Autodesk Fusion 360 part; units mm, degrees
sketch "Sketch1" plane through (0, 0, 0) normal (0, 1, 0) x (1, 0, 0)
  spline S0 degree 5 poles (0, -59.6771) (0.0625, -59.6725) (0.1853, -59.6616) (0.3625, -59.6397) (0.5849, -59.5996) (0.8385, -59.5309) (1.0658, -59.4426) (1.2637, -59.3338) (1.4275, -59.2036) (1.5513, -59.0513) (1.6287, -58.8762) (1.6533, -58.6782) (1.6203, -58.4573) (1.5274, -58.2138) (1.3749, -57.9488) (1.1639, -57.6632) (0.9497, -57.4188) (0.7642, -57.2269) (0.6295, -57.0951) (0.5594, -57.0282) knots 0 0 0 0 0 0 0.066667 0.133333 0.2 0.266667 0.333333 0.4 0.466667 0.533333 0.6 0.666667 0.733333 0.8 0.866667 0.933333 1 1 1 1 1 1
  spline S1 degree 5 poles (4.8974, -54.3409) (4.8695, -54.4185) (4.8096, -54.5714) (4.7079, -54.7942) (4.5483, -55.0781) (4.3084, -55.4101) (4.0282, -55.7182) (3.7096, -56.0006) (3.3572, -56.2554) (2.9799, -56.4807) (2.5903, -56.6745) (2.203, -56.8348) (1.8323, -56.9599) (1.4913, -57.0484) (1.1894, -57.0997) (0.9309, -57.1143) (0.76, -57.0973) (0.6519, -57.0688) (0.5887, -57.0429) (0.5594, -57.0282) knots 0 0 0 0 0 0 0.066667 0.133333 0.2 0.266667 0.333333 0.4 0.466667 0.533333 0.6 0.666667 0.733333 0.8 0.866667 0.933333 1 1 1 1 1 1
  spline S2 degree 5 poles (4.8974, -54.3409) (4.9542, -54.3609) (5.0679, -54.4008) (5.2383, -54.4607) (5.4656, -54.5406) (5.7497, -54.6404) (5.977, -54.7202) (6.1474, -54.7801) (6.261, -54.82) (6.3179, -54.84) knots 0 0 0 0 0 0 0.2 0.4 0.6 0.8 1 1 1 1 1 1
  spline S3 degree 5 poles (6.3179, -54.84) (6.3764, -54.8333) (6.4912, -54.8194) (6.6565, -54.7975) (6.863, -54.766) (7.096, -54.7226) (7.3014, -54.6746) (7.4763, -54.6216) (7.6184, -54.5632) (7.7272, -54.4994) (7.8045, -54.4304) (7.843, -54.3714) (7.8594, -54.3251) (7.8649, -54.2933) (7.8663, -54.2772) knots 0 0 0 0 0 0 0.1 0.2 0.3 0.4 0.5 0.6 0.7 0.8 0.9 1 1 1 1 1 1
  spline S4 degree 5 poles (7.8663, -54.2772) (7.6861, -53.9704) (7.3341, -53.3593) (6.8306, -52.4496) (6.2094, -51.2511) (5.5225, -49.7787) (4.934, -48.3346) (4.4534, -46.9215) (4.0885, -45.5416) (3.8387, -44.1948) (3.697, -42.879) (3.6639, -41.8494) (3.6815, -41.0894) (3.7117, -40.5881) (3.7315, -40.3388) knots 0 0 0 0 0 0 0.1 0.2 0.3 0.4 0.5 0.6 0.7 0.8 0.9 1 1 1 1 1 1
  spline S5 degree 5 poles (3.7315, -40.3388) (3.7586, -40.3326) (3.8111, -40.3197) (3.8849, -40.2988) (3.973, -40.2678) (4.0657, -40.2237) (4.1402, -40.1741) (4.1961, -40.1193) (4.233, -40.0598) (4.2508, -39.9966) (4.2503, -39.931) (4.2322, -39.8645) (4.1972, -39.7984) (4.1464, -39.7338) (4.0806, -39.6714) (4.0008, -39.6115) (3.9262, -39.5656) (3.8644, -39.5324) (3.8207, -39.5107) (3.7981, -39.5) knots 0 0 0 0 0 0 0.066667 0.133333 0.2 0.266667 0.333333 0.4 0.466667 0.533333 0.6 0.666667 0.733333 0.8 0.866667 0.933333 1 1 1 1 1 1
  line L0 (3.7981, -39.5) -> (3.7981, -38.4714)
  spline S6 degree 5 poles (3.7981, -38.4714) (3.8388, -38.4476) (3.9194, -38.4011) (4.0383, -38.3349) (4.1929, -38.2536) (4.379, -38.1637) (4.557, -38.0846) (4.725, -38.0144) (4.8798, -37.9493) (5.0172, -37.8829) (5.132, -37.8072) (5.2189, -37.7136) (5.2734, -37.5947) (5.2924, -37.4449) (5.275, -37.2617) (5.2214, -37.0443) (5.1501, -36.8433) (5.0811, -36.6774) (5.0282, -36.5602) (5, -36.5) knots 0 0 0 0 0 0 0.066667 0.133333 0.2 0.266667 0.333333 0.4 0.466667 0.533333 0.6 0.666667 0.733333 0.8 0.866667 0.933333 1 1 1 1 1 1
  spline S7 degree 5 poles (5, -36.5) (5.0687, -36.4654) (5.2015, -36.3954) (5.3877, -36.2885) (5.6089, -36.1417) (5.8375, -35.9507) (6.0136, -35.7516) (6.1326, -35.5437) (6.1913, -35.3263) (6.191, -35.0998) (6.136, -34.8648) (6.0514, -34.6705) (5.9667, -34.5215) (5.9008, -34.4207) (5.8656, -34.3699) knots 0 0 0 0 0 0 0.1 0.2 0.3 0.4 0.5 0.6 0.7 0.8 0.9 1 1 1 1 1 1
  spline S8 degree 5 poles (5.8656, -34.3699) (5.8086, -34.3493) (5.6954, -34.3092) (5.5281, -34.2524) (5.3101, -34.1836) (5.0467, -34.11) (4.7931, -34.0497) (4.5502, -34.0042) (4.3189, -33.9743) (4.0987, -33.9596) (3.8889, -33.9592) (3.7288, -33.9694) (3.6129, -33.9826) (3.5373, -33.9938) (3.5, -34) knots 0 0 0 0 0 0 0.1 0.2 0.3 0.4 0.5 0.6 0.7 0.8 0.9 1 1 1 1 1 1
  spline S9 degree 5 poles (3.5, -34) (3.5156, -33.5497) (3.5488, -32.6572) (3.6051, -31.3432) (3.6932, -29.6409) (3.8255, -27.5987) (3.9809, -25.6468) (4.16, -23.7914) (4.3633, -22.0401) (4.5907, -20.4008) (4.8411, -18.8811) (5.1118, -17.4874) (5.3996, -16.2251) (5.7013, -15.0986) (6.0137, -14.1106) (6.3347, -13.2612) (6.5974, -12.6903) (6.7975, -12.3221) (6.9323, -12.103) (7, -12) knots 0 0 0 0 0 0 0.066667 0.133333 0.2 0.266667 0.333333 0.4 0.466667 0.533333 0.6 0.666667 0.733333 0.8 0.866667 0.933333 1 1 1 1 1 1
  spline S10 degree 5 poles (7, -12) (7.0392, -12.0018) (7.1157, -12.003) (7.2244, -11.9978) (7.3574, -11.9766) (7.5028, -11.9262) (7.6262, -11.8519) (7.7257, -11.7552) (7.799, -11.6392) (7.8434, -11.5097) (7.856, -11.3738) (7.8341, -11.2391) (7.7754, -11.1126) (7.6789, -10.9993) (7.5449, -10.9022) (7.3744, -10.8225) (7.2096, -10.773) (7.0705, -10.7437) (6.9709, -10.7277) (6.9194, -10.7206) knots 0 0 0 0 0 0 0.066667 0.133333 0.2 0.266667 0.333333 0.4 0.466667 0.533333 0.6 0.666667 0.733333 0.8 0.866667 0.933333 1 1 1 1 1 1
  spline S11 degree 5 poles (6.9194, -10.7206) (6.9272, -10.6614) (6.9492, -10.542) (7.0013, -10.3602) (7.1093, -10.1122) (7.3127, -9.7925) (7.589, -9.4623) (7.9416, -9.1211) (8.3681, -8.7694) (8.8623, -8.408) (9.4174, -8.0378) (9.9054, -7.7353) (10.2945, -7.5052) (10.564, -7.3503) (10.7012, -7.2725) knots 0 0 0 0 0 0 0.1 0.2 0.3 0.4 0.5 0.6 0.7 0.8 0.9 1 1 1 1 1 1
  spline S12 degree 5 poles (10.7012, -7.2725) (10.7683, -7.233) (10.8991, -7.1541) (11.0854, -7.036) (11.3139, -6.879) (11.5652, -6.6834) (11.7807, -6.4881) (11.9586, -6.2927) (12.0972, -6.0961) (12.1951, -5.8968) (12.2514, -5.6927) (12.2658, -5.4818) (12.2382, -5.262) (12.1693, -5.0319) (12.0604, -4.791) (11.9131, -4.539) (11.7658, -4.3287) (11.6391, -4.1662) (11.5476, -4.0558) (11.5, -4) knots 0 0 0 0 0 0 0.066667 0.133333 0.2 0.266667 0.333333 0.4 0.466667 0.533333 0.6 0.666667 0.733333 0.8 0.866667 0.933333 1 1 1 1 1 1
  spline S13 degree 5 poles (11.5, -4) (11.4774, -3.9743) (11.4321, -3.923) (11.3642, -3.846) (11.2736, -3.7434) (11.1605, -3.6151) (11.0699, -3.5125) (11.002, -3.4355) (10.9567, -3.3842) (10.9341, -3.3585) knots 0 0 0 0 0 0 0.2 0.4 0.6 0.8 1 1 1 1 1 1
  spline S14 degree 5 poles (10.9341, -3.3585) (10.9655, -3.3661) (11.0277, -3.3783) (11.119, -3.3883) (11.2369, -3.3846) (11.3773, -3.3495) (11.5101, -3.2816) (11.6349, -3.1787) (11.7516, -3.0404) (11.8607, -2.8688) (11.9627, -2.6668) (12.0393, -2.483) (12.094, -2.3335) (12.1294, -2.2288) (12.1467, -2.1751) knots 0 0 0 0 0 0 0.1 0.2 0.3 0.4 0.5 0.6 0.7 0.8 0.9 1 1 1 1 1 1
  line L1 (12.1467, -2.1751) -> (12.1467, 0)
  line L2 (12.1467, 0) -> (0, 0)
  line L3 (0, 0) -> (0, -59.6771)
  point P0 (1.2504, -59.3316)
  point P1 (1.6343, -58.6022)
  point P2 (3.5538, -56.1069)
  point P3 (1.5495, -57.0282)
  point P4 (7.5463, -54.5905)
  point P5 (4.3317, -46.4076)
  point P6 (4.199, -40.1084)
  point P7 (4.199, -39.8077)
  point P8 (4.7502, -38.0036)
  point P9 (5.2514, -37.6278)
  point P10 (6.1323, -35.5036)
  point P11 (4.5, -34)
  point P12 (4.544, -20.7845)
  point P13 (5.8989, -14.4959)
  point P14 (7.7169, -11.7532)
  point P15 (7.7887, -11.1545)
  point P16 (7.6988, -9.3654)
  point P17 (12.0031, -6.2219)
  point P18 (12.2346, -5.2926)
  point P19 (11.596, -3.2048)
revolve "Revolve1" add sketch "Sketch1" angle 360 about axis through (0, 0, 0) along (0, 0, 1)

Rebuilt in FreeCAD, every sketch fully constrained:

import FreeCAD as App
import Part
import Sketcher
from FreeCAD import Vector

doc = App.newDocument("Part")
body = doc.addObject("PartDesign::Body", "Body")

# Sketch on XZ plane
sketch1 = body.newObject("Sketcher::SketchObject", "Sketch")
sketch1.AttachmentSupport = (doc.getObject("XZ_Plane"), [""])
sketch1.MapMode = "FlatFace"
sketch1.addGeometry([
    Part.LineSegment(Vector(0, 0, 0), Vector(0, 59.6771, 0)),  # 0
    Part.BSplineCurve([Vector(0, 59.6771, 0), Vector(0.0625, 59.6725, 0), Vector(0.1853, 59.6616, 0), Vector(0.3625, 59.6397, 0), Vector(0.5849, 59.5996, 0), Vector(0.8385, 59.5309, 0), Vector(1.0658, 59.4426, 0), Vector(1.2637, 59.3338, 0), Vector(1.4275, 59.2036, 0), Vector(1.5513, 59.0513, 0), Vector(1.6287, 58.8762, 0), Vector(1.6533, 58.6782, 0), Vector(1.6203, 58.4573, 0), Vector(1.5274, 58.2138, 0), Vector(1.3749, 57.9488, 0), Vector(1.1639, 57.6632, 0), Vector(0.9497, 57.4188, 0), Vector(0.7642, 57.2269, 0), Vector(0.6295, 57.0951, 0), Vector(0.5594, 57.0282, 0)], [6, 1, 1, 1, 1, 1, 1, 1, 1, 1, 1, 1, 1, 1, 1, 6], [0, 0.066667, 0.133333, 0.2, 0.266667, 0.333333, 0.4, 0.466667, 0.533333, 0.6, 0.666667, 0.733333, 0.8, 0.866667, 0.933333, 1], False, 5, [1, 1, 1, 1, 1, 1, 1, 1, 1, 1, 1, 1, 1, 1, 1, 1, 1, 1, 1, 1], False),  # 1
    Part.BSplineCurve([Vector(4.8974, 54.3409, 0), Vector(4.8695, 54.4185, 0), Vector(4.8096, 54.5714, 0), Vector(4.7079, 54.7942, 0), Vector(4.5483, 55.0781, 0), Vector(4.3084, 55.4101, 0), Vector(4.0282, 55.7182, 0), Vector(3.7096, 56.0006, 0), Vector(3.3572, 56.2554, 0), Vector(2.9799, 56.4807, 0), Vector(2.5903, 56.6745, 0), Vector(2.203, 56.8348, 0), Vector(1.8323, 56.9599, 0), Vector(1.4913, 57.0484, 0), Vector(1.1894, 57.0997, 0), Vector(0.9309, 57.1143, 0), Vector(0.76, 57.0973, 0), Vector(0.6519, 57.0688, 0), Vector(0.5887, 57.0429, 0), Vector(0.5594, 57.0282, 0)], [6, 1, 1, 1, 1, 1, 1, 1, 1, 1, 1, 1, 1, 1, 1, 6], [0, 0.066667, 0.133333, 0.2, 0.266667, 0.333333, 0.4, 0.466667, 0.533333, 0.6, 0.666667, 0.733333, 0.8, 0.866667, 0.933333, 1], False, 5, [1, 1, 1, 1, 1, 1, 1, 1, 1, 1, 1, 1, 1, 1, 1, 1, 1, 1, 1, 1], False),  # 2
    Part.BSplineCurve([Vector(4.8974, 54.3409, 0), Vector(4.9542, 54.3609, 0), Vector(5.0679, 54.4008, 0), Vector(5.2383, 54.4607, 0), Vector(5.4656, 54.5406, 0), Vector(5.7497, 54.6404, 0), Vector(5.977, 54.7202, 0), Vector(6.1474, 54.7801, 0), Vector(6.261, 54.82, 0), Vector(6.3179, 54.84, 0)], [6, 1, 1, 1, 1, 6], [0, 0.2, 0.4, 0.6, 0.8, 1], False, 5, [1, 1, 1, 1, 1, 1, 1, 1, 1, 1], False),  # 3
    Part.BSplineCurve([Vector(6.3179, 54.84, 0), Vector(6.3764, 54.8333, 0), Vector(6.4912, 54.8194, 0), Vector(6.6565, 54.7975, 0), Vector(6.863, 54.766, 0), Vector(7.096, 54.7226, 0), Vector(7.3014, 54.6746, 0), Vector(7.4763, 54.6216, 0), Vector(7.6184, 54.5632, 0), Vector(7.7272, 54.4994, 0), Vector(7.8045, 54.4304, 0), Vector(7.843, 54.3714, 0), Vector(7.8594, 54.3251, 0), Vector(7.8649, 54.2933, 0), Vector(7.8663, 54.2772, 0)], [6, 1, 1, 1, 1, 1, 1, 1, 1, 1, 6], [0, 0.1, 0.2, 0.3, 0.4, 0.5, 0.6, 0.7, 0.8, 0.9, 1], False, 5, [1, 1, 1, 1, 1, 1, 1, 1, 1, 1, 1, 1, 1, 1, 1], False),  # 4
    Part.BSplineCurve([Vector(7.8663, 54.2772, 0), Vector(7.6861, 53.9704, 0), Vector(7.3341, 53.3593, 0), Vector(6.8306, 52.4496, 0), Vector(6.2094, 51.2511, 0), Vector(5.5225, 49.7787, 0), Vector(4.934, 48.3346, 0), Vector(4.4534, 46.9215, 0), Vector(4.0885, 45.5416, 0), Vector(3.8387, 44.1948, 0), Vector(3.697, 42.879, 0), Vector(3.6639, 41.8494, 0), Vector(3.6815, 41.0894, 0), Vector(3.7117, 40.5881, 0), Vector(3.7315, 40.3388, 0)], [6, 1, 1, 1, 1, 1, 1, 1, 1, 1, 6], [0, 0.1, 0.2, 0.3, 0.4, 0.5, 0.6, 0.7, 0.8, 0.9, 1], False, 5, [1, 1, 1, 1, 1, 1, 1, 1, 1, 1, 1, 1, 1, 1, 1], False),  # 5
    Part.BSplineCurve([Vector(3.7315, 40.3388, 0), Vector(3.7586, 40.3326, 0), Vector(3.8111, 40.3197, 0), Vector(3.8849, 40.2988, 0), Vector(3.973, 40.2678, 0), Vector(4.0657, 40.2237, 0), Vector(4.1402, 40.1741, 0), Vector(4.1961, 40.1193, 0), Vector(4.233, 40.0598, 0), Vector(4.2508, 39.9966, 0), Vector(4.2503, 39.931, 0), Vector(4.2322, 39.8645, 0), Vector(4.1972, 39.7984, 0), Vector(4.1464, 39.7338, 0), Vector(4.0806, 39.6714, 0), Vector(4.0008, 39.6115, 0), Vector(3.9262, 39.5656, 0), Vector(3.8644, 39.5324, 0), Vector(3.8207, 39.5107, 0), Vector(3.7981, 39.5, 0)], [6, 1, 1, 1, 1, 1, 1, 1, 1, 1, 1, 1, 1, 1, 1, 6], [0, 0.066667, 0.133333, 0.2, 0.266667, 0.333333, 0.4, 0.466667, 0.533333, 0.6, 0.666667, 0.733333, 0.8, 0.866667, 0.933333, 1], False, 5, [1, 1, 1, 1, 1, 1, 1, 1, 1, 1, 1, 1, 1, 1, 1, 1, 1, 1, 1, 1], False),  # 6
    Part.LineSegment(Vector(3.7981, 39.5, 0), Vector(3.7981, 38.4714, 0)),  # 7
    Part.BSplineCurve([Vector(3.7981, 38.4714, 0), Vector(3.8388, 38.4476, 0), Vector(3.9194, 38.4011, 0), Vector(4.0383, 38.3349, 0), Vector(4.1929, 38.2536, 0), Vector(4.379, 38.1637, 0), Vector(4.557, 38.0846, 0), Vector(4.725, 38.0144, 0), Vector(4.8798, 37.9493, 0), Vector(5.0172, 37.8829, 0), Vector(5.132, 37.8072, 0), Vector(5.2189, 37.7136, 0), Vector(5.2734, 37.5947, 0), Vector(5.2924, 37.4449, 0), Vector(5.275, 37.2617, 0), Vector(5.2214, 37.0443, 0), Vector(5.1501, 36.8433, 0), Vector(5.0811, 36.6774, 0), Vector(5.0282, 36.5602, 0), Vector(5, 36.5, 0)], [6, 1, 1, 1, 1, 1, 1, 1, 1, 1, 1, 1, 1, 1, 1, 6], [0, 0.066667, 0.133333, 0.2, 0.266667, 0.333333, 0.4, 0.466667, 0.533333, 0.6, 0.666667, 0.733333, 0.8, 0.866667, 0.933333, 1], False, 5, [1, 1, 1, 1, 1, 1, 1, 1, 1, 1, 1, 1, 1, 1, 1, 1, 1, 1, 1, 1], False),  # 8
    Part.BSplineCurve([Vector(5, 36.5, 0), Vector(5.0687, 36.4654, 0), Vector(5.2015, 36.3954, 0), Vector(5.3877, 36.2885, 0), Vector(5.6089, 36.1417, 0), Vector(5.8375, 35.9507, 0), Vector(6.0136, 35.7516, 0), Vector(6.1326, 35.5437, 0), Vector(6.1913, 35.3263, 0), Vector(6.191, 35.0998, 0), Vector(6.136, 34.8648, 0), Vector(6.0514, 34.6705, 0), Vector(5.9667, 34.5215, 0), Vector(5.9008, 34.4207, 0), Vector(5.8656, 34.3699, 0)], [6, 1, 1, 1, 1, 1, 1, 1, 1, 1, 6], [0, 0.1, 0.2, 0.3, 0.4, 0.5, 0.6, 0.7, 0.8, 0.9, 1], False, 5, [1, 1, 1, 1, 1, 1, 1, 1, 1, 1, 1, 1, 1, 1, 1], False),  # 9
    Part.BSplineCurve([Vector(5.8656, 34.3699, 0), Vector(5.8086, 34.3493, 0), Vector(5.6954, 34.3092, 0), Vector(5.5281, 34.2524, 0), Vector(5.3101, 34.1836, 0), Vector(5.0467, 34.11, 0), Vector(4.7931, 34.0497, 0), Vector(4.5502, 34.0042, 0), Vector(4.3189, 33.9743, 0), Vector(4.0987, 33.9596, 0), Vector(3.8889, 33.9592, 0), Vector(3.7288, 33.9694, 0), Vector(3.6129, 33.9826, 0), Vector(3.5373, 33.9938, 0), Vector(3.5, 34, 0)], [6, 1, 1, 1, 1, 1, 1, 1, 1, 1, 6], [0, 0.1, 0.2, 0.3, 0.4, 0.5, 0.6, 0.7, 0.8, 0.9, 1], False, 5, [1, 1, 1, 1, 1, 1, 1, 1, 1, 1, 1, 1, 1, 1, 1], False),  # 10
    Part.BSplineCurve([Vector(3.5, 34, 0), Vector(3.5156, 33.5497, 0), Vector(3.5488, 32.6572, 0), Vector(3.6051, 31.3432, 0), Vector(3.6932, 29.6409, 0), Vector(3.8255, 27.5987, 0), Vector(3.9809, 25.6468, 0), Vector(4.16, 23.7914, 0), Vector(4.3633, 22.0401, 0), Vector(4.5907, 20.4008, 0), Vector(4.8411, 18.8811, 0), Vector(5.1118, 17.4874, 0), Vector(5.3996, 16.2251, 0), Vector(5.7013, 15.0986, 0), Vector(6.0137, 14.1106, 0), Vector(6.3347, 13.2612, 0), Vector(6.5974, 12.6903, 0), Vector(6.7975, 12.3221, 0), Vector(6.9323, 12.103, 0), Vector(7, 12, 0)], [6, 1, 1, 1, 1, 1, 1, 1, 1, 1, 1, 1, 1, 1, 1, 6], [0, 0.066667, 0.133333, 0.2, 0.266667, 0.333333, 0.4, 0.466667, 0.533333, 0.6, 0.666667, 0.733333, 0.8, 0.866667, 0.933333, 1], False, 5, [1, 1, 1, 1, 1, 1, 1, 1, 1, 1, 1, 1, 1, 1, 1, 1, 1, 1, 1, 1], False),  # 11
    Part.BSplineCurve([Vector(7, 12, 0), Vector(7.0392, 12.0018, 0), Vector(7.1157, 12.003, 0), Vector(7.2244, 11.9978, 0), Vector(7.3574, 11.9766, 0), Vector(7.5028, 11.9262, 0), Vector(7.6262, 11.8519, 0), Vector(7.7257, 11.7552, 0), Vector(7.799, 11.6392, 0), Vector(7.8434, 11.5097, 0), Vector(7.856, 11.3738, 0), Vector(7.8341, 11.2391, 0), Vector(7.7754, 11.1126, 0), Vector(7.6789, 10.9993, 0), Vector(7.5449, 10.9022, 0), Vector(7.3744, 10.8225, 0), Vector(7.2096, 10.773, 0), Vector(7.0705, 10.7437, 0), Vector(6.9709, 10.7277, 0), Vector(6.9194, 10.7206, 0)], [6, 1, 1, 1, 1, 1, 1, 1, 1, 1, 1, 1, 1, 1, 1, 6], [0, 0.066667, 0.133333, 0.2, 0.266667, 0.333333, 0.4, 0.466667, 0.533333, 0.6, 0.666667, 0.733333, 0.8, 0.866667, 0.933333, 1], False, 5, [1, 1, 1, 1, 1, 1, 1, 1, 1, 1, 1, 1, 1, 1, 1, 1, 1, 1, 1, 1], False),  # 12
    Part.BSplineCurve([Vector(6.9194, 10.7206, 0), Vector(6.9272, 10.6614, 0), Vector(6.9492, 10.542, 0), Vector(7.0013, 10.3602, 0), Vector(7.1093, 10.1122, 0), Vector(7.3127, 9.7925, 0), Vector(7.589, 9.4623, 0), Vector(7.9416, 9.1211, 0), Vector(8.3681, 8.7694, 0), Vector(8.8623, 8.408, 0), Vector(9.4174, 8.0378, 0), Vector(9.9054, 7.7353, 0), Vector(10.2945, 7.5052, 0), Vector(10.564, 7.3503, 0), Vector(10.7012, 7.2725, 0)], [6, 1, 1, 1, 1, 1, 1, 1, 1, 1, 6], [0, 0.1, 0.2, 0.3, 0.4, 0.5, 0.6, 0.7, 0.8, 0.9, 1], False, 5, [1, 1, 1, 1, 1, 1, 1, 1, 1, 1, 1, 1, 1, 1, 1], False),  # 13
    Part.BSplineCurve([Vector(10.7012, 7.2725, 0), Vector(10.7683, 7.233, 0), Vector(10.8991, 7.1541, 0), Vector(11.0854, 7.036, 0), Vector(11.3139, 6.879, 0), Vector(11.5652, 6.6834, 0), Vector(11.7807, 6.4881, 0), Vector(11.9586, 6.2927, 0), Vector(12.0972, 6.0961, 0), Vector(12.1951, 5.8968, 0), Vector(12.2514, 5.6927, 0), Vector(12.2658, 5.4818, 0), Vector(12.2382, 5.262, 0), Vector(12.1693, 5.0319, 0), Vector(12.0604, 4.791, 0), Vector(11.9131, 4.539, 0), Vector(11.7658, 4.3287, 0), Vector(11.6391, 4.1662, 0), Vector(11.5476, 4.0558, 0), Vector(11.5, 4, 0)], [6, 1, 1, 1, 1, 1, 1, 1, 1, 1, 1, 1, 1, 1, 1, 6], [0, 0.066667, 0.133333, 0.2, 0.266667, 0.333333, 0.4, 0.466667, 0.533333, 0.6, 0.666667, 0.733333, 0.8, 0.866667, 0.933333, 1], False, 5, [1, 1, 1, 1, 1, 1, 1, 1, 1, 1, 1, 1, 1, 1, 1, 1, 1, 1, 1, 1], False),  # 14
    Part.BSplineCurve([Vector(11.5, 4, 0), Vector(11.4774, 3.9743, 0), Vector(11.4321, 3.923, 0), Vector(11.3642, 3.846, 0), Vector(11.2736, 3.7434, 0), Vector(11.1605, 3.6151, 0), Vector(11.0699, 3.5125, 0), Vector(11.002, 3.4355, 0), Vector(10.9567, 3.3842, 0), Vector(10.9341, 3.3585, 0)], [6, 1, 1, 1, 1, 6], [0, 0.2, 0.4, 0.6, 0.8, 1], False, 5, [1, 1, 1, 1, 1, 1, 1, 1, 1, 1], False),  # 15
    Part.BSplineCurve([Vector(10.9341, 3.3585, 0), Vector(10.9655, 3.3661, 0), Vector(11.0277, 3.3783, 0), Vector(11.119, 3.3883, 0), Vector(11.2369, 3.3846, 0), Vector(11.3773, 3.3495, 0), Vector(11.5101, 3.2816, 0), Vector(11.6349, 3.1787, 0), Vector(11.7516, 3.0404, 0), Vector(11.8607, 2.8688, 0), Vector(11.9627, 2.6668, 0), Vector(12.0393, 2.483, 0), Vector(12.094, 2.3335, 0), Vector(12.1294, 2.2288, 0), Vector(12.1467, 2.1751, 0)], [6, 1, 1, 1, 1, 1, 1, 1, 1, 1, 6], [0, 0.1, 0.2, 0.3, 0.4, 0.5, 0.6, 0.7, 0.8, 0.9, 1], False, 5, [1, 1, 1, 1, 1, 1, 1, 1, 1, 1, 1, 1, 1, 1, 1], False),  # 16
    Part.LineSegment(Vector(12.1467, 2.1751, 0), Vector(12.1467, 0, 0)),  # 17
    Part.LineSegment(Vector(12.1467, 0, 0), Vector(0, 0, 0)),  # 18
], False)
sketch1.addConstraint([
    Sketcher.Constraint("Block", 1),
    Sketcher.Constraint("Block", 2),
    Sketcher.Constraint("Block", 3),
    Sketcher.Constraint("Block", 4),
    Sketcher.Constraint("Block", 5),
    Sketcher.Constraint("Block", 6),
    Sketcher.Constraint("Block", 8),
    Sketcher.Constraint("Block", 9),
    Sketcher.Constraint("Block", 10),
    Sketcher.Constraint("Block", 11),
    Sketcher.Constraint("Block", 12),
    Sketcher.Constraint("Block", 13),
    Sketcher.Constraint("Block", 14),
    Sketcher.Constraint("Block", 15),
    Sketcher.Constraint("Block", 16),
    Sketcher.Constraint("Coincident", 0, 2, 1, 1),
    Sketcher.Constraint("Coincident", 6, 2, 7, 1),
    Sketcher.Constraint("Coincident", 7, 2, 8, 1),
    Sketcher.Constraint("Coincident", 16, 2, 17, 1),
    Sketcher.Constraint("Coincident", 17, 2, 18, 1),
    Sketcher.Constraint("Coincident", 18, 2, 0, 1),
    Sketcher.Constraint("Vertical", 0),
    Sketcher.Constraint("Vertical", 17),
    Sketcher.Constraint("Horizontal", 18),
    Sketcher.Constraint("PointOnObject", 17, 2, -1),
])
revolution = body.newObject("PartDesign::Revolution", "Revolution")
revolution.Profile = sketch1
revolution.ReferenceAxis = (sketch1, ["V_Axis"])
revolution.Angle = 360

doc.recompute()
